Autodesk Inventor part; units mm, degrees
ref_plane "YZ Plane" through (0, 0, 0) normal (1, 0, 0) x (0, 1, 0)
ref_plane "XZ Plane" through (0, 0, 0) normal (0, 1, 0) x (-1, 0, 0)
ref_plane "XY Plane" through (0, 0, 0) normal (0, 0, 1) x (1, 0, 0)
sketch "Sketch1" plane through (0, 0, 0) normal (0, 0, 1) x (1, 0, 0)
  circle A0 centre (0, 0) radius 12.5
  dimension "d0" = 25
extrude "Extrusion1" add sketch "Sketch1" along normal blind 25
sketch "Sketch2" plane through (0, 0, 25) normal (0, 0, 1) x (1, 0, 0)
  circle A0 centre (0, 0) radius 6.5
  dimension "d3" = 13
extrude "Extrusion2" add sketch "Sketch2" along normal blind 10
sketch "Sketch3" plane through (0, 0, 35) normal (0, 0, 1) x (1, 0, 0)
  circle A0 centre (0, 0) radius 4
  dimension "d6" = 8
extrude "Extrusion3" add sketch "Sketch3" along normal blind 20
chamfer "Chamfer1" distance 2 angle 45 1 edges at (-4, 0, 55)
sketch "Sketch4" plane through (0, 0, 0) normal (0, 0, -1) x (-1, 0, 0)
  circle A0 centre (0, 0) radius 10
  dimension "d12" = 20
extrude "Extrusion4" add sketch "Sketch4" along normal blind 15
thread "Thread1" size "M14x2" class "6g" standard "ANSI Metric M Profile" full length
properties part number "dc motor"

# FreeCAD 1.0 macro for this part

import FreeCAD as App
import Part
import Sketcher

V = App.Vector
Q = App.Units.Quantity


def edges_at(feature, points):
    """Names of the edges that pass closest to the given points."""
    edges = feature.Shape.Edges
    near = lambda p: min(range(len(edges)), key=lambda i: edges[i].distToShape(Part.Vertex(*p))[0])
    return sorted({f"Edge{near(p) + 1}" for p in points})

doc = App.newDocument("Part")
params = doc.addObject("Spreadsheet::Sheet", "Params")
for row, (alias, value) in enumerate([
    ("sketch1_diameter", "25 mm"),
    ("pad1_length", "25 mm"),
    ("sketch2_diameter", "13 mm"),
    ("pad2_length", "10 mm"),
    ("sketch3_diameter", "8 mm"),
    ("pad3_length", "20 mm"),
    ("chamfer_size", "2 mm"),
    ("sketch4_diameter", "20 mm"),
    ("pad4_length", "15 mm"),
], start=1):
    params.set(f"A{row}", alias)
    params.set(f"B{row}", "=" + value)
    params.setAlias(f"B{row}", alias)

body = doc.addObject("PartDesign::Body", "Body")

# Sketch on XY plane
sketch1 = body.newObject("Sketcher::SketchObject", "Sketch")
sketch1.AttachmentSupport = (doc.getObject("XY_Plane"), [""])
sketch1.MapMode = "FlatFace"
sketch1.addGeometry(Part.Circle(V(0, 0, 0), V(0, 0, 1), 12.5), False)
sketch1.addConstraint(Sketcher.Constraint("Coincident", 0, 3, -1, 1))
sketch1.addConstraint(Sketcher.Constraint("Diameter", 0, Q("25 mm")))
sketch1.setExpression("Constraints[1]", "Params.sketch1_diameter")
pad1 = body.newObject("PartDesign::Pad", "Pad")
pad1.Profile = sketch1
pad1.setExpression("Length", "Params.pad1_length")

# Sketch on XY plane
sketch2 = body.newObject("Sketcher::SketchObject", "Sketch001")
sketch2.AttachmentSupport = (doc.getObject("XY_Plane"), [""])
sketch2.MapMode = "FlatFace"
sketch2.AttachmentOffset = App.Placement(V(0, 0, 25), App.Rotation())
sketch2.addGeometry(Part.Circle(V(0, 0, 0), V(0, 0, 1), 6.5), False)
sketch2.addConstraint(Sketcher.Constraint("Coincident", 0, 3, -1, 1))
sketch2.addConstraint(Sketcher.Constraint("Diameter", 0, Q("13 mm")))
sketch2.setExpression("Constraints[1]", "Params.sketch2_diameter")
pad2 = body.newObject("PartDesign::Pad", "Pad001")
pad2.Profile = sketch2
pad2.setExpression("Length", "Params.pad2_length")

# Sketch on XY plane
sketch3 = body.newObject("Sketcher::SketchObject", "Sketch002")
sketch3.AttachmentSupport = (doc.getObject("XY_Plane"), [""])
sketch3.MapMode = "FlatFace"
sketch3.AttachmentOffset = App.Placement(V(0, 0, 35), App.Rotation())
sketch3.addGeometry(Part.Circle(V(0, 0, 0), V(0, 0, 1), 4), False)
sketch3.addConstraint(Sketcher.Constraint("Coincident", 0, 3, -1, 1))
sketch3.addConstraint(Sketcher.Constraint("Diameter", 0, Q("8 mm")))
sketch3.setExpression("Constraints[1]", "Params.sketch3_diameter")
pad3 = body.newObject("PartDesign::Pad", "Pad002")
pad3.Profile = sketch3
pad3.setExpression("Length", "Params.pad3_length")
doc.recompute()

chamfer = body.newObject("PartDesign::Chamfer", "Chamfer")
chamfer.Base = (pad3, edges_at(pad3, [(-4, 0, 55)]))
chamfer.setExpression("Size", "Params.chamfer_size")

# Sketch on XY plane
sketch4 = body.newObject("Sketcher::SketchObject", "Sketch003")
sketch4.AttachmentSupport = (doc.getObject("XY_Plane"), [""])
sketch4.MapMode = "FlatFace"
sketch4.addGeometry(Part.Circle(V(0, 0, 0), V(0, 0, 1), 10), False)
sketch4.addConstraint(Sketcher.Constraint("Coincident", 0, 3, -1, 1))
sketch4.addConstraint(Sketcher.Constraint("Diameter", 0, Q("20 mm")))
sketch4.setExpression("Constraints[1]", "Params.sketch4_diameter")
pad4 = body.newObject("PartDesign::Pad", "Pad003")
pad4.Profile = sketch4
pad4.setExpression("Length", "Params.pad4_length")
pad4.Reversed = True

doc.recompute()
